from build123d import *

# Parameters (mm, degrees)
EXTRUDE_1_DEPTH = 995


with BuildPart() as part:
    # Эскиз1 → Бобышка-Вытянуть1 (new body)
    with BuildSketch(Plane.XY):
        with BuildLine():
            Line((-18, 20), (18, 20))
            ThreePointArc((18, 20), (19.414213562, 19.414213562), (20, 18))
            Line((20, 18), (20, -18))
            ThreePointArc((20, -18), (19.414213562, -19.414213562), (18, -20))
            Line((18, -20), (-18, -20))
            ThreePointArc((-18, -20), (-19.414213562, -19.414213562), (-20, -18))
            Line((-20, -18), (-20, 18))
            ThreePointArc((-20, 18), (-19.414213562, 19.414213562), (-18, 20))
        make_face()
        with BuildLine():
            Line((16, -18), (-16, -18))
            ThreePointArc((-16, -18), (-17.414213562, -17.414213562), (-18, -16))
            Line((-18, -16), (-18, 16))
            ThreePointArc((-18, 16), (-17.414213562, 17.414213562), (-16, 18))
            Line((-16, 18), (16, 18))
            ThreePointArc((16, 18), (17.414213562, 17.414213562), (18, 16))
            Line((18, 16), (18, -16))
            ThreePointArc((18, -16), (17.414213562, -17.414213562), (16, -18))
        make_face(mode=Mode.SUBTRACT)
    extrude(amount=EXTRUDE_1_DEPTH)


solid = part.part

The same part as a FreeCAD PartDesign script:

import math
import FreeCAD as App
import Part
import Sketcher
from FreeCAD import Vector
Q = App.Units.Quantity

doc = App.newDocument("Part")
params = doc.addObject("Spreadsheet::Sheet", "Params")
for row, (alias, value) in enumerate([
    ("sketch1_radius", "2 mm"),
    ("sketch1_width", "36 mm"),
    ("pad1_length", "995 mm"),
], start=1):
    params.set(f"A{row}", alias)
    params.set(f"B{row}", "=" + value)
    params.setAlias(f"B{row}", alias)

body = doc.addObject("PartDesign::Body", "Body")

# Sketch on XY plane
sketch1 = body.newObject("Sketcher::SketchObject", "Sketch")
sketch1.AttachmentSupport = (doc.getObject("XY_Plane"), [""])
sketch1.MapMode = "FlatFace"
sketch1.addGeometry(Part.LineSegment(Vector(18, 20, 0), Vector(-18, 20, 0)), False)
sketch1.addGeometry(Part.ArcOfCircle(Part.Circle(Vector(-18, 18, 0), Vector(0, 0, 1), 2), math.radians(90), math.radians(180)), False)
sketch1.addGeometry(Part.LineSegment(Vector(-20, 18, 0), Vector(-20, -18, 0)), False)
sketch1.addGeometry(Part.ArcOfCircle(Part.Circle(Vector(-18, -18, 0), Vector(0, 0, 1), 2), math.radians(-180), math.radians(-90)), False)
sketch1.addGeometry(Part.LineSegment(Vector(-18, -20, 0), Vector(18, -20, 0)), False)
sketch1.addGeometry(Part.ArcOfCircle(Part.Circle(Vector(18, -18, 0), Vector(0, 0, 1), 2), math.radians(-90), math.radians(0)), False)
sketch1.addGeometry(Part.LineSegment(Vector(20, -18, 0), Vector(20, 18, 0)), False)
sketch1.addGeometry(Part.ArcOfCircle(Part.Circle(Vector(18, 18, 0), Vector(0, 0, 1), 2), math.radians(0), math.radians(90)), False)
sketch1.addGeometry(Part.LineSegment(Vector(16, -18, 0), Vector(-16, -18, 0)), False)
sketch1.addGeometry(Part.ArcOfCircle(Part.Circle(Vector(-16, -16, 0), Vector(0, 0, 1), 2), math.radians(-180), math.radians(-90)), False)
sketch1.addGeometry(Part.LineSegment(Vector(-18, -16, 0), Vector(-18, 16, 0)), False)
sketch1.addGeometry(Part.ArcOfCircle(Part.Circle(Vector(-16, 16, 0), Vector(0, 0, 1), 2), math.radians(90), math.radians(180)), False)
sketch1.addGeometry(Part.LineSegment(Vector(-16, 18, 0), Vector(16, 18, 0)), False)
sketch1.addGeometry(Part.ArcOfCircle(Part.Circle(Vector(16, 16, 0), Vector(0, 0, 1), 2), math.radians(0), math.radians(90)), False)
sketch1.addGeometry(Part.LineSegment(Vector(18, 16, 0), Vector(18, -16, 0)), False)
sketch1.addGeometry(Part.ArcOfCircle(Part.Circle(Vector(16, -16, 0), Vector(0, 0, 1), 2), math.radians(-90), math.radians(0)), False)
sketch1.addConstraint(Sketcher.Constraint("Tangent", 0, 2, 1, 1))
sketch1.addConstraint(Sketcher.Constraint("Tangent", 1, 2, 2, 1))
sketch1.addConstraint(Sketcher.Constraint("Tangent", 2, 2, 3, 1))
sketch1.addConstraint(Sketcher.Constraint("Tangent", 3, 2, 4, 1))
sketch1.addConstraint(Sketcher.Constraint("Tangent", 4, 2, 5, 1))
sketch1.addConstraint(Sketcher.Constraint("Tangent", 5, 2, 6, 1))
sketch1.addConstraint(Sketcher.Constraint("Tangent", 6, 2, 7, 1))
sketch1.addConstraint(Sketcher.Constraint("Tangent", 7, 2, 0, 1))
sketch1.addConstraint(Sketcher.Constraint("Tangent", 8, 2, 9, 2))
sketch1.addConstraint(Sketcher.Constraint("Tangent", 9, 1, 10, 1))
sketch1.addConstraint(Sketcher.Constraint("Tangent", 10, 2, 11, 2))
sketch1.addConstraint(Sketcher.Constraint("Tangent", 11, 1, 12, 1))
sketch1.addConstraint(Sketcher.Constraint("Tangent", 12, 2, 13, 2))
sketch1.addConstraint(Sketcher.Constraint("Tangent", 13, 1, 14, 1))
sketch1.addConstraint(Sketcher.Constraint("Tangent", 14, 2, 15, 2))
sketch1.addConstraint(Sketcher.Constraint("Tangent", 15, 1, 8, 1))
sketch1.addConstraint(Sketcher.Constraint("Horizontal", 0))
sketch1.addConstraint(Sketcher.Constraint("Vertical", 2))
sketch1.addConstraint(Sketcher.Constraint("Horizontal", 4))
sketch1.addConstraint(Sketcher.Constraint("Vertical", 6))
sketch1.addConstraint(Sketcher.Constraint("Horizontal", 8))
sketch1.addConstraint(Sketcher.Constraint("Vertical", 10))
sketch1.addConstraint(Sketcher.Constraint("Horizontal", 12))
sketch1.addConstraint(Sketcher.Constraint("Vertical", 14))
sketch1.addConstraint(Sketcher.Constraint("Equal", 1, 3))
sketch1.addConstraint(Sketcher.Constraint("Equal", 3, 5))
sketch1.addConstraint(Sketcher.Constraint("Equal", 5, 7))
sketch1.addConstraint(Sketcher.Constraint("Equal", 7, 9))
sketch1.addConstraint(Sketcher.Constraint("Equal", 9, 11))
sketch1.addConstraint(Sketcher.Constraint("Equal", 11, 13))
sketch1.addConstraint(Sketcher.Constraint("Equal", 13, 15))
sketch1.addConstraint(Sketcher.Constraint("Symmetric", 1, 3, 5, 3, -1, 1))
sketch1.addConstraint(Sketcher.Constraint("Symmetric", 9, 3, 13, 3, -1, 1))
sketch1.addConstraint(Sketcher.Constraint("Horizontal", 5, 2, 8, 2))
sketch1.addConstraint(Sketcher.Constraint("Vertical", 3, 2, 9, 1))
sketch1.addConstraint(Sketcher.Constraint("Equal", 4, 2))
sketch1.addConstraint(Sketcher.Constraint("Radius", 1, Q("2 mm")))
sketch1.addConstraint(Sketcher.Constraint("DistanceX", 0, 2, 0, 1, Q("36 mm")))
sketch1.setExpression("Constraints[36]", "Params.sketch1_radius")
sketch1.setExpression("Constraints[37]", "Params.sketch1_width")
pad1 = body.newObject("PartDesign::Pad", "Pad")
pad1.Profile = sketch1
pad1.setExpression("Length", "Params.pad1_length")

doc.recompute()
